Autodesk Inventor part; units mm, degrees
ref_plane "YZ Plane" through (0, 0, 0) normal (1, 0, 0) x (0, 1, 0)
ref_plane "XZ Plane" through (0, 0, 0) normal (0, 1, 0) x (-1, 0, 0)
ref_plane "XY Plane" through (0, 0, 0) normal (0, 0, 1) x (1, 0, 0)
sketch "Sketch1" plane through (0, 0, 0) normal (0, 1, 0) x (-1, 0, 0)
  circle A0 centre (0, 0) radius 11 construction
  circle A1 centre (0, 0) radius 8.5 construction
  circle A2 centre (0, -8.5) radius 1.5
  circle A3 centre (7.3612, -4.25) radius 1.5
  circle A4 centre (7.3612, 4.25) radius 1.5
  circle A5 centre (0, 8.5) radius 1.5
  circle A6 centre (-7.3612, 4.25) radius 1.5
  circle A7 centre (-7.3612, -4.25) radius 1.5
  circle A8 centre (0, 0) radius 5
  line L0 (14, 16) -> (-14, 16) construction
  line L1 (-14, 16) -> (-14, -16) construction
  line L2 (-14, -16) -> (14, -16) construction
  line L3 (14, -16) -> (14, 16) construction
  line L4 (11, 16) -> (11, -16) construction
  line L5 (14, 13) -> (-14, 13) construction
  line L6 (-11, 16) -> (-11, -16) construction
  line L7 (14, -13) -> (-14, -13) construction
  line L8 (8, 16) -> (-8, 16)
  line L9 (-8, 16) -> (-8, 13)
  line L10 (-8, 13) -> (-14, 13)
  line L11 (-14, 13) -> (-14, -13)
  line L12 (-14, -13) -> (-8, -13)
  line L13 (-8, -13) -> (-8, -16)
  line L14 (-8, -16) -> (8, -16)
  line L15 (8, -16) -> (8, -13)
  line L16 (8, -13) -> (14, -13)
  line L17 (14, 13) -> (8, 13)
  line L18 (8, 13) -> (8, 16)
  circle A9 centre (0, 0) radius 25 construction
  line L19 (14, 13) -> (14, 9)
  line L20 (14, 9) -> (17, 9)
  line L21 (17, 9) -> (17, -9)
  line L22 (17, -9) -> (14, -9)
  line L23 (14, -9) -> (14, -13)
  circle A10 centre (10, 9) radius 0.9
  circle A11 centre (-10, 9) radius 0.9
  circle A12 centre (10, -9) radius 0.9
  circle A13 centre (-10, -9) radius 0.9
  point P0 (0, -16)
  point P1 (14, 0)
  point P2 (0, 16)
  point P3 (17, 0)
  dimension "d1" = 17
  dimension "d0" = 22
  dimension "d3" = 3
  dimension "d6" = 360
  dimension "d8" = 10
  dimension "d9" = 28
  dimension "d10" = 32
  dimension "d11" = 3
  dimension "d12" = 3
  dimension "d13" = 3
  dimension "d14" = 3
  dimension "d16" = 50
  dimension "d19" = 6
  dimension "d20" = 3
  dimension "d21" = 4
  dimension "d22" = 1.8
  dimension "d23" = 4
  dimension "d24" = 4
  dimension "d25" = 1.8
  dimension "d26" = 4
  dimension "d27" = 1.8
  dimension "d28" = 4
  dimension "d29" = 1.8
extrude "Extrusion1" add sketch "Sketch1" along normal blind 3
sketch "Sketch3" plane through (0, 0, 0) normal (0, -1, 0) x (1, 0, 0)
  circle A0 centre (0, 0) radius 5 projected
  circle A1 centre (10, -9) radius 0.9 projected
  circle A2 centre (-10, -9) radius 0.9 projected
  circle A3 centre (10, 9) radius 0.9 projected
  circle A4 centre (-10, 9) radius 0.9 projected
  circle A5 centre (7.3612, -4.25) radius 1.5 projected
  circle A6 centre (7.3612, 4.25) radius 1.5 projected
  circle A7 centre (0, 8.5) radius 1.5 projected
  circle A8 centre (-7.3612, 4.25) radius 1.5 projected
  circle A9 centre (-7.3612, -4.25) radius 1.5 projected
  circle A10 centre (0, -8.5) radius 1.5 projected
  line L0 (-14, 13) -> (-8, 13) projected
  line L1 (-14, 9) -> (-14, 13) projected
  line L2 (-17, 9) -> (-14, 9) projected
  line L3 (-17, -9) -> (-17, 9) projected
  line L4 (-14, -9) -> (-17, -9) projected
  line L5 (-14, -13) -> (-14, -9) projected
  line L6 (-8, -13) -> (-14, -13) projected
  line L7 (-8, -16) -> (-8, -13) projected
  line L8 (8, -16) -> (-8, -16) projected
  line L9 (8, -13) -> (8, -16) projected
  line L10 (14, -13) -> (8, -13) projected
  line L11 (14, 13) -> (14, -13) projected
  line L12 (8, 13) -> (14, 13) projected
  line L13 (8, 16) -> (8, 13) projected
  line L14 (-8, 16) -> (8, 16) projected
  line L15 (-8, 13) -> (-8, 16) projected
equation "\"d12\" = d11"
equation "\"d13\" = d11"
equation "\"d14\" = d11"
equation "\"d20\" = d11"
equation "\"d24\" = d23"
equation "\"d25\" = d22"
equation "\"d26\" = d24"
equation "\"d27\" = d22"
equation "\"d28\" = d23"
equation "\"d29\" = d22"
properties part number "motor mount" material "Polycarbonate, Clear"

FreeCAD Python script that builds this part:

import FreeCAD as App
import Part
import Sketcher
from FreeCAD import Vector
Q = App.Units.Quantity


def add_polygon(sketch, points):
    """Adds a closed chain of lines whose ends are joined by coincident constraints."""
    first, n = sketch.GeometryCount, len(points)
    for a, b in zip(points, points[1:] + points[:1]):
        sketch.addGeometry(Part.LineSegment(App.Vector(*a, 0), App.Vector(*b, 0)), False)
    for i in range(n):
        sketch.addConstraint(Sketcher.Constraint("Coincident", first + i, 2, first + (i + 1) % n, 1))

doc = App.newDocument("Part")
params = doc.addObject("Spreadsheet::Sheet", "Params")
for row, (alias, value) in enumerate([
    ("sketch1_diameter", "3 mm"),
    ("sketch1_diameter2", "10 mm"),
    ("sketch1_diameter3", "1.8 mm"),
    ("sketch1_width", "6 mm"),
    ("sketch1_width2", "3 mm"),
    ("pad1_length", "3 mm"),
], start=1):
    params.set(f"A{row}", alias)
    params.set(f"B{row}", "=" + value)
    params.setAlias(f"B{row}", alias)

body = doc.addObject("PartDesign::Body", "Body")

sketch1 = doc.addObject("Sketcher::SketchObject", "Sketch")
body.addObject(sketch1)
sketch1.AttachmentSupport = (doc.XZ_Plane, [""])
sketch1.MapMode = "FlatFace"
add_polygon(sketch1, [(-8, 13), (-8, 16), (8, 16), (8, 13), (14, 13), (14, -13), (8, -13), (8, -16), (-8, -16), (-8, -13), (-14, -13), (-14, -9), (-17, -9), (-17, 9), (-14, 9), (-14, 13)])
sketch1.addGeometry(Part.Circle(Vector(10, -9, 0), Vector(0, 0, 1), 0.9), False)
sketch1.addGeometry(Part.Circle(Vector(0, -8.5, 0), Vector(0, 0, 1), 1.5), False)
sketch1.addGeometry(Part.Circle(Vector(7.3612, -4.25, 0), Vector(0, 0, 1), 1.5), False)
sketch1.addGeometry(Part.Circle(Vector(-10, -9, 0), Vector(0, 0, 1), 0.9), False)
sketch1.addGeometry(Part.Circle(Vector(-7.3612, -4.25, 0), Vector(0, 0, 1), 1.5), False)
sketch1.addGeometry(Part.Circle(Vector(7.3612, 4.25, 0), Vector(0, 0, 1), 1.5), False)
sketch1.addGeometry(Part.Circle(Vector(0, 0, 0), Vector(0, 0, 1), 5), False)
sketch1.addGeometry(Part.Circle(Vector(10, 9, 0), Vector(0, 0, 1), 0.9), False)
sketch1.addGeometry(Part.Circle(Vector(0, 8.5, 0), Vector(0, 0, 1), 1.5), False)
sketch1.addGeometry(Part.Circle(Vector(-7.3612, 4.25, 0), Vector(0, 0, 1), 1.5), False)
sketch1.addGeometry(Part.Circle(Vector(-10, 9, 0), Vector(0, 0, 1), 0.9), False)
sketch1.addConstraint(Sketcher.Constraint("Vertical", 0))
sketch1.addConstraint(Sketcher.Constraint("Horizontal", 1))
sketch1.addConstraint(Sketcher.Constraint("Vertical", 2))
sketch1.addConstraint(Sketcher.Constraint("Horizontal", 3))
sketch1.addConstraint(Sketcher.Constraint("Vertical", 4))
sketch1.addConstraint(Sketcher.Constraint("Horizontal", 5))
sketch1.addConstraint(Sketcher.Constraint("Vertical", 6))
sketch1.addConstraint(Sketcher.Constraint("Horizontal", 7))
sketch1.addConstraint(Sketcher.Constraint("Vertical", 8))
sketch1.addConstraint(Sketcher.Constraint("Horizontal", 9))
sketch1.addConstraint(Sketcher.Constraint("Vertical", 10))
sketch1.addConstraint(Sketcher.Constraint("Horizontal", 11))
sketch1.addConstraint(Sketcher.Constraint("Vertical", 12))
sketch1.addConstraint(Sketcher.Constraint("Horizontal", 13))
sketch1.addConstraint(Sketcher.Constraint("Vertical", 14))
sketch1.addConstraint(Sketcher.Constraint("Horizontal", 15))
sketch1.addConstraint(Sketcher.Constraint("Coincident", 22, 3, -1, 1))
sketch1.addConstraint(Sketcher.Constraint("Equal", 17, 18))
sketch1.addConstraint(Sketcher.Constraint("Equal", 16, 19))
sketch1.addConstraint(Sketcher.Constraint("Equal", 18, 20))
sketch1.addConstraint(Sketcher.Constraint("Equal", 20, 21))
sketch1.addConstraint(Sketcher.Constraint("Equal", 19, 23))
sketch1.addConstraint(Sketcher.Constraint("Equal", 21, 24))
sketch1.addConstraint(Sketcher.Constraint("Equal", 24, 25))
sketch1.addConstraint(Sketcher.Constraint("Equal", 23, 26))
sketch1.addConstraint(Sketcher.Constraint("Symmetric", 20, 3, 21, 3, -1, 1))
sketch1.addConstraint(Sketcher.Constraint("Symmetric", 19, 3, 23, 3, -1, 1))
sketch1.addConstraint(Sketcher.Constraint("Symmetric", 17, 3, 24, 3, -1, 1))
sketch1.addConstraint(Sketcher.Constraint("Symmetric", 18, 3, 25, 3, -1, 1))
sketch1.addConstraint(Sketcher.Constraint("Symmetric", 16, 3, 26, 3, -1, 1))
sketch1.addConstraint(Sketcher.Constraint("Symmetric", 0, 2, 6, 2, -1, 1))
sketch1.addConstraint(Sketcher.Constraint("Symmetric", 2, 2, 8, 2, -1, 1))
sketch1.addConstraint(Sketcher.Constraint("Symmetric", 4, 2, 14, 2, -1, 1))
sketch1.addConstraint(Sketcher.Constraint("Symmetric", 16, 3, 19, 3, -2))
sketch1.addConstraint(Sketcher.Constraint("Symmetric", 18, 3, 20, 3, -2))
sketch1.addConstraint(Sketcher.Constraint("Symmetric", 5, 2, 8, 2, -2))
sketch1.addConstraint(Sketcher.Constraint("Symmetric", 10, 2, 13, 2, -1))
sketch1.addConstraint(Sketcher.Constraint("PointOnObject", 17, 3, -2))
sketch1.addConstraint(Sketcher.Constraint("Horizontal", 19, 3, 10, 2))
sketch1.addConstraint(Sketcher.Constraint("Equal", 13, 0))
sketch1.addConstraint(Sketcher.Constraint("Diameter", 17, Q("3 mm")))
sketch1.addConstraint(Sketcher.Constraint("Diameter", 22, Q("10 mm")))
sketch1.addConstraint(Sketcher.Constraint("Diameter", 16, Q("1.8 mm")))
sketch1.addConstraint(Sketcher.Constraint("DistanceX", 3, 1, 3, 2, Q("6 mm")))
sketch1.addConstraint(Sketcher.Constraint("DistanceX", 11, 2, 11, 1, Q("3 mm")))
sketch1.addConstraint(Sketcher.Constraint("DistanceY", 10, 1, 10, 2, Q("4 mm")))
sketch1.addConstraint(Sketcher.Constraint("DistanceX", -1, 1, 16, 3, Q("10 mm")))
sketch1.addConstraint(Sketcher.Constraint("DistanceX", 11, 2, -1, 1, Q("17 mm")))
sketch1.addConstraint(Sketcher.Constraint("DistanceY", 4, 2, 4, 1, Q("26 mm")))
sketch1.addConstraint(Sketcher.Constraint("DistanceY", 17, 3, -1, 1, Q("8.5 mm")))
sketch1.addConstraint(Sketcher.Constraint("DistanceY", 18, 3, 21, 3, Q("8.5 mm")))
sketch1.addConstraint(Sketcher.Constraint("DistanceX", -1, 1, 18, 3, Q("7.3612 mm")))
sketch1.setExpression("Constraints[56]", "Params.sketch1_diameter")
sketch1.setExpression("Constraints[57]", "Params.sketch1_diameter2")
sketch1.setExpression("Constraints[58]", "Params.sketch1_diameter3")
sketch1.setExpression("Constraints[59]", "Params.sketch1_width")
sketch1.setExpression("Constraints[60]", "Params.sketch1_width2")
pad1 = doc.addObject("PartDesign::Pad", "Pad")
body.addObject(pad1)
pad1.Profile = sketch1
pad1.setExpression("Length", "Params.pad1_length")
pad1.Reversed = True

doc.recompute()
